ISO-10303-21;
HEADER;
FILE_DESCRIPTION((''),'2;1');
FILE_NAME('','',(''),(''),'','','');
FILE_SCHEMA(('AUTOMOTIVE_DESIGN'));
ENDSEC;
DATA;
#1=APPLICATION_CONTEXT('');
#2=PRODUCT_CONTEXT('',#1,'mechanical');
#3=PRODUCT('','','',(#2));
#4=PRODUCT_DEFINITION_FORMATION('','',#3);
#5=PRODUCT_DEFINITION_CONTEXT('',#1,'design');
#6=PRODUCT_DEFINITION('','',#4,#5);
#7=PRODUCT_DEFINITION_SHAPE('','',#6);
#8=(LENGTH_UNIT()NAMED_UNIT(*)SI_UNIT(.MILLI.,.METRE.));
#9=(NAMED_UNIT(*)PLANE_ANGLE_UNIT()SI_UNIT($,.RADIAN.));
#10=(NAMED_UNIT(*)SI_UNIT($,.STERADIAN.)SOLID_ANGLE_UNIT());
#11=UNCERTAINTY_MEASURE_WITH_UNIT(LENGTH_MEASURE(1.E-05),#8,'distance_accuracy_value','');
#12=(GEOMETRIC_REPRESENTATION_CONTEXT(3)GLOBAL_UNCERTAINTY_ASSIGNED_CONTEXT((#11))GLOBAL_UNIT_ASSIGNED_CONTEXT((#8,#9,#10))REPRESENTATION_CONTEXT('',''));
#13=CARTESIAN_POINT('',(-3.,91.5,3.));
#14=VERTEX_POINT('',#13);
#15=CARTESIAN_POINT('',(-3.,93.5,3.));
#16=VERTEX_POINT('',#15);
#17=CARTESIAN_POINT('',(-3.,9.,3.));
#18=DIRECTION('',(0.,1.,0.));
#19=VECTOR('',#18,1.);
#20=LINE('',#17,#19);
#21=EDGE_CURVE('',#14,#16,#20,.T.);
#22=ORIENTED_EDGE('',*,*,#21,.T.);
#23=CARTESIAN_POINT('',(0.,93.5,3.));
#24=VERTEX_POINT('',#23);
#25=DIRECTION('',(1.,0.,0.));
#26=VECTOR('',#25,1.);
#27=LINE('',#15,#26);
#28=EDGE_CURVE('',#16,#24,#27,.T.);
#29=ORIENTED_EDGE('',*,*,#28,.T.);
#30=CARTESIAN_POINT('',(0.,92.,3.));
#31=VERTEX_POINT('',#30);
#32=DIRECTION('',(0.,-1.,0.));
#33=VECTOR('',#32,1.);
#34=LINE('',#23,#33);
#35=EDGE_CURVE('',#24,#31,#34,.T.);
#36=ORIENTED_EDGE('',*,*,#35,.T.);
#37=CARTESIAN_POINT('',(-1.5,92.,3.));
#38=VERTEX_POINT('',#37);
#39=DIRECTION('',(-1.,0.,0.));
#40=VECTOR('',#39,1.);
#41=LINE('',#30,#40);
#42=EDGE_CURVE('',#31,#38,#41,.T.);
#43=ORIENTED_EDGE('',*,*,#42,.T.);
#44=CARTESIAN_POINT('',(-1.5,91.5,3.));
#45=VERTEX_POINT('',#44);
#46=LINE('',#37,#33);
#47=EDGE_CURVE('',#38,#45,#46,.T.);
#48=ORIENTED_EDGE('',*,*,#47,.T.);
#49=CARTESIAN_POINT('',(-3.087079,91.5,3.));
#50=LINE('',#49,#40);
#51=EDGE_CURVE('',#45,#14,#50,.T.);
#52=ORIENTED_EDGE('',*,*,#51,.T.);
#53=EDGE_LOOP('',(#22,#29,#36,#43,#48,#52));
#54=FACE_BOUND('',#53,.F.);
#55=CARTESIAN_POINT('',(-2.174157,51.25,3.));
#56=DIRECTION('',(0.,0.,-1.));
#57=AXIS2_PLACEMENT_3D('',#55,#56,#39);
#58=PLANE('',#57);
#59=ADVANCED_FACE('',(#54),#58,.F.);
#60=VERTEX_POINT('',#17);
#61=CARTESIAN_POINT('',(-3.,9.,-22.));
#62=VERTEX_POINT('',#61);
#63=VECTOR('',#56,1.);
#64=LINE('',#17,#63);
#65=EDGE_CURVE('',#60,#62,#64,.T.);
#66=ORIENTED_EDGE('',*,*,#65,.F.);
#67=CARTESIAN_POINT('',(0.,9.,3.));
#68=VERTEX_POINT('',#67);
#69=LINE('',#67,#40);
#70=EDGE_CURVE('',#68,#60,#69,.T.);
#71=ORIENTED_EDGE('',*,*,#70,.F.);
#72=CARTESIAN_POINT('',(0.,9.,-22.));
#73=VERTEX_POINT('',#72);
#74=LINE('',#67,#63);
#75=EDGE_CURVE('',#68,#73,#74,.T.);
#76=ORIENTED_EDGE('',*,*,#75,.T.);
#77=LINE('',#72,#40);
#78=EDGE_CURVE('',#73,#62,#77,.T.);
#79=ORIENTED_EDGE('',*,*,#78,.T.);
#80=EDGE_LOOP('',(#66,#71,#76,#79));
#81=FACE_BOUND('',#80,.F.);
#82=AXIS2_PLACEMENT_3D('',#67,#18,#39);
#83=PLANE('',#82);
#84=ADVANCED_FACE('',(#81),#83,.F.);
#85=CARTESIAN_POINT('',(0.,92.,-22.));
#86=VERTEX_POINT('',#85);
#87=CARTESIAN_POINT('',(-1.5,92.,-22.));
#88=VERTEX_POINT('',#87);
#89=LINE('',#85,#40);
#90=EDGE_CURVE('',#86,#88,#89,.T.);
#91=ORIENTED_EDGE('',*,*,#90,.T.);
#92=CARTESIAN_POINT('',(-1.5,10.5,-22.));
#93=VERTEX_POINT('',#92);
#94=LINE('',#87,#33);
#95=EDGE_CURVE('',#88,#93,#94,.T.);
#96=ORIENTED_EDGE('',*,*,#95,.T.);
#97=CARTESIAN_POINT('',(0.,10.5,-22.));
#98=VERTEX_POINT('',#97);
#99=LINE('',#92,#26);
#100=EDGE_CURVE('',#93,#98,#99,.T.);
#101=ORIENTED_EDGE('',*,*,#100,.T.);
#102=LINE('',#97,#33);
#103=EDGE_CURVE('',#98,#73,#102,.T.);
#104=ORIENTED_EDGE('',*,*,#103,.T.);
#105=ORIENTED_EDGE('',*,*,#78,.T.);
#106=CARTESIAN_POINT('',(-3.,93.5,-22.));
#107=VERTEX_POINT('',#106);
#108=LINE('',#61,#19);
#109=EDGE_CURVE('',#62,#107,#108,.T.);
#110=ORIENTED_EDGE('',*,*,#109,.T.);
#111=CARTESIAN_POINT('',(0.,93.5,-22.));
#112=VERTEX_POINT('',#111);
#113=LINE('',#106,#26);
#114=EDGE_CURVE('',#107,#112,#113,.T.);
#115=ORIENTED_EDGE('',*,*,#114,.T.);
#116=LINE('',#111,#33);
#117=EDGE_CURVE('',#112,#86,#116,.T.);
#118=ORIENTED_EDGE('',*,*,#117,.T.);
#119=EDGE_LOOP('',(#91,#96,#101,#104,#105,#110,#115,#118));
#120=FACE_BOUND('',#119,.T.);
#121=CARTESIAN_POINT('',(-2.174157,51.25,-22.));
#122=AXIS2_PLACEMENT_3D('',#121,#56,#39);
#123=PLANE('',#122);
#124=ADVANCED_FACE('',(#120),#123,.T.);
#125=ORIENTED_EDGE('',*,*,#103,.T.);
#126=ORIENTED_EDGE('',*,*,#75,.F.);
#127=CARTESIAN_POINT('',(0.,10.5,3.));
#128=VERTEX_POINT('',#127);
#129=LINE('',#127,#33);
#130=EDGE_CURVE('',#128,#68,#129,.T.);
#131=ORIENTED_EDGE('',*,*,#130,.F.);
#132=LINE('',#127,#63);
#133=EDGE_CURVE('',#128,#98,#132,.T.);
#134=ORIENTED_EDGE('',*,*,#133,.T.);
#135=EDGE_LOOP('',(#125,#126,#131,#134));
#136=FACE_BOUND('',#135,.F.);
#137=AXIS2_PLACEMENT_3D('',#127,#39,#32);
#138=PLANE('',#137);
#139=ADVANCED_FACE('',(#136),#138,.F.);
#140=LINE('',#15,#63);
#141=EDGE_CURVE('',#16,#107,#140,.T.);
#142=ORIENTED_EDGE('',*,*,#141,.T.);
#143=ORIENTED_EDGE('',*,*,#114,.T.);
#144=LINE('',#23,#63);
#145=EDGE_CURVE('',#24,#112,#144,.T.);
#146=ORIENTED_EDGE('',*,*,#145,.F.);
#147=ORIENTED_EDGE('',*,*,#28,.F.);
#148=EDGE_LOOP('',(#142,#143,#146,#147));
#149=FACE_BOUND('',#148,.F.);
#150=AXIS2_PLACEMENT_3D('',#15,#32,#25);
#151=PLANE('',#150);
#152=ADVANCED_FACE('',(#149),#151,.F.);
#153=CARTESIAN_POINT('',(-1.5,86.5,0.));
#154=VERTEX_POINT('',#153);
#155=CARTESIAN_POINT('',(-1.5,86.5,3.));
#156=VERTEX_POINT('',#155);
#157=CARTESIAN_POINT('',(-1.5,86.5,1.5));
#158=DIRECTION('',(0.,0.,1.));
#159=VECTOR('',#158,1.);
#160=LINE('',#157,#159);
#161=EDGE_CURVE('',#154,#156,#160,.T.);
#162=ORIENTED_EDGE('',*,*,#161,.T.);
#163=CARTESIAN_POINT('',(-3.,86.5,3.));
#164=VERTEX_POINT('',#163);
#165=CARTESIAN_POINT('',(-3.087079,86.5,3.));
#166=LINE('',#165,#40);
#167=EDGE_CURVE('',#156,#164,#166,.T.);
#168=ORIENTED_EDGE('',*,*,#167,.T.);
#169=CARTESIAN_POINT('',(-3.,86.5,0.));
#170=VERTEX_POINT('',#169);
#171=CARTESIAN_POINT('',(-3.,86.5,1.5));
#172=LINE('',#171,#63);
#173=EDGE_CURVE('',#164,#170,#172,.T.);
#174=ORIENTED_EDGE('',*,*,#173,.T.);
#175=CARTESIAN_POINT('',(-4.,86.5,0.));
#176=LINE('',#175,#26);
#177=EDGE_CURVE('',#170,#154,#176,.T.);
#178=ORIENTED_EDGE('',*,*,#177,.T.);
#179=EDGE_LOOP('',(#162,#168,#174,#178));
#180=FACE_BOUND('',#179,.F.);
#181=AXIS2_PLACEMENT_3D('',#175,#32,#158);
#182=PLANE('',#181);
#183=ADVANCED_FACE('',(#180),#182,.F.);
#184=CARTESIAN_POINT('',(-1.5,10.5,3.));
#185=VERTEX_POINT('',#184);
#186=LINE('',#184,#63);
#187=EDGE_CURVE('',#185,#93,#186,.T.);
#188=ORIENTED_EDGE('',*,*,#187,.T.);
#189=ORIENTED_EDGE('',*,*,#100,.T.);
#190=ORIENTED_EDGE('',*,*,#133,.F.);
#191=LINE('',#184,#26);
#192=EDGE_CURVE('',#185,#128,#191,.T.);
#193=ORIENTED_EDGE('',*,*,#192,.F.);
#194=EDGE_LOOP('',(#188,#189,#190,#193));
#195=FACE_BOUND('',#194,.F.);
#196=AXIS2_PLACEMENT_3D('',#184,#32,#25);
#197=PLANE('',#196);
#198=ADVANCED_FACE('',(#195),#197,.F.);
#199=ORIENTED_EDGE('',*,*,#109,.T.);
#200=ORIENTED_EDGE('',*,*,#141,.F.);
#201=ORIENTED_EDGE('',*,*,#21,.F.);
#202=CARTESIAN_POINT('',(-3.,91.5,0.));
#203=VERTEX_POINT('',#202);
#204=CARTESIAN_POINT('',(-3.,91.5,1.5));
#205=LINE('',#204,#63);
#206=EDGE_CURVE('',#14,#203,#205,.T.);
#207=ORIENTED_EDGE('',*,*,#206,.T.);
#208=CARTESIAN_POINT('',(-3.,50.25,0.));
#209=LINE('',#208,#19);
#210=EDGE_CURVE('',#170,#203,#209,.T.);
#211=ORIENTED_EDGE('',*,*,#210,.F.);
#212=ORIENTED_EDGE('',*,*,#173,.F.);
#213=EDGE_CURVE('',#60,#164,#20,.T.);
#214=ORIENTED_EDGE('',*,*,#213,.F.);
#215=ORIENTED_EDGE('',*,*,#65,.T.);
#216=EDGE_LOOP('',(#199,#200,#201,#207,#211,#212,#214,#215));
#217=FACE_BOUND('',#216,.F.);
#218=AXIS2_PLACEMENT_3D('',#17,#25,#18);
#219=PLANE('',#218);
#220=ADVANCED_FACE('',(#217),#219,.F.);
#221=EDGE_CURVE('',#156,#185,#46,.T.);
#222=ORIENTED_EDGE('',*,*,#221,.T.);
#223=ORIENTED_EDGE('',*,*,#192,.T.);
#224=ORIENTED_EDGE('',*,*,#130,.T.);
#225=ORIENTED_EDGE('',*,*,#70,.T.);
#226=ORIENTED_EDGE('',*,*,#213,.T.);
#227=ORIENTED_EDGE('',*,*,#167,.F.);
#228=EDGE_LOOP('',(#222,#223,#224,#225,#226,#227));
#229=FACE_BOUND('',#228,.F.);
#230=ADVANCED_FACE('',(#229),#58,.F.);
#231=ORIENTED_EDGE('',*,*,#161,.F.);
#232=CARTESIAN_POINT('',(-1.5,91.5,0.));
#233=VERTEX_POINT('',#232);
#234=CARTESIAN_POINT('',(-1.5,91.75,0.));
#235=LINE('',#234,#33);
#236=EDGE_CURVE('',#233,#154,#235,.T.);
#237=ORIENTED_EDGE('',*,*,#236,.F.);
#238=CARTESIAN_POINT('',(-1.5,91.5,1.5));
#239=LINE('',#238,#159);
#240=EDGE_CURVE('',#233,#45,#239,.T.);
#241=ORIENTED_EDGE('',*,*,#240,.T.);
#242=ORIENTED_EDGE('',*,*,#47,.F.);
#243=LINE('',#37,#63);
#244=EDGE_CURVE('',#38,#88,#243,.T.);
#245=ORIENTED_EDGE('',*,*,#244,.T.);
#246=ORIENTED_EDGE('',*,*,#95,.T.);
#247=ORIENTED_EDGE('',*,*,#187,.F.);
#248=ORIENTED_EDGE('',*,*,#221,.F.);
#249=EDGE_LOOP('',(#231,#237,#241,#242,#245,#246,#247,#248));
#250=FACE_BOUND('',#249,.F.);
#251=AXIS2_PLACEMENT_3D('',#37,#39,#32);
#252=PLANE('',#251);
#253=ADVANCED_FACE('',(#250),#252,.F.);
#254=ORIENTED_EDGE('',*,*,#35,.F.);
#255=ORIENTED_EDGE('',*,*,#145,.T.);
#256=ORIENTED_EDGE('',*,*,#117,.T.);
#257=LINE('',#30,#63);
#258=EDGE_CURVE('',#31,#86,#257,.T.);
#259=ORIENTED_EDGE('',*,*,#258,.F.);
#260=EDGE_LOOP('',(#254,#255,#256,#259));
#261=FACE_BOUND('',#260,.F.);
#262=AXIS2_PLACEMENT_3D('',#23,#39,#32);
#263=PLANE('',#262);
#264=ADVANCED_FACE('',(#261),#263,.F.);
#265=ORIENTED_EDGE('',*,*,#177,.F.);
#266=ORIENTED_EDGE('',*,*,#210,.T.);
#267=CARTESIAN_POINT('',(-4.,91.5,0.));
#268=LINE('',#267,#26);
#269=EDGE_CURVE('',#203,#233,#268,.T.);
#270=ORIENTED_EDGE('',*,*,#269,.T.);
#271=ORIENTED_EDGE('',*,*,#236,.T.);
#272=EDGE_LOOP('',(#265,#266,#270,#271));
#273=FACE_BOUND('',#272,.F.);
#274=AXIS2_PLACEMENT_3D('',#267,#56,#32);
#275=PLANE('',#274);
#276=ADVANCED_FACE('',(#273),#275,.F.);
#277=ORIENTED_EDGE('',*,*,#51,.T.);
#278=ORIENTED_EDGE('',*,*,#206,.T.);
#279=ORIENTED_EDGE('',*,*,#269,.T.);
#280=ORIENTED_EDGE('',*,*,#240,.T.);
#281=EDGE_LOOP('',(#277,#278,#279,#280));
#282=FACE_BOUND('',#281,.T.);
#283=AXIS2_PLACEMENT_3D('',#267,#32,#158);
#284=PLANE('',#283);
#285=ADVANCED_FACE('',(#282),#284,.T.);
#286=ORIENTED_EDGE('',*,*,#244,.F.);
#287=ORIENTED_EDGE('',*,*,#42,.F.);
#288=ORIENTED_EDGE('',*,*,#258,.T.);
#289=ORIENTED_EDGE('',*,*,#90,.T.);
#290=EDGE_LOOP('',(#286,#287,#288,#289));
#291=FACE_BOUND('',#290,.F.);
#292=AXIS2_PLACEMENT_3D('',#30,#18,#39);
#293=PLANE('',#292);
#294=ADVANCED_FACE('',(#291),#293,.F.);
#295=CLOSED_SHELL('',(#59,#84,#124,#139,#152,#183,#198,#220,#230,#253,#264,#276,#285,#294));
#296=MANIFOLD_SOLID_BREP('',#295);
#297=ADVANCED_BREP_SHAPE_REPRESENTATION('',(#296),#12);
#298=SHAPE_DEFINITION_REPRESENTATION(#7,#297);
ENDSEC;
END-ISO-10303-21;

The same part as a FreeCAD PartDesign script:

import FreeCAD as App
import Part
import Sketcher
Q = App.Units.Quantity


def add_polygon(sketch, points):
    """Adds a closed chain of lines whose ends are joined by coincident constraints."""
    first, n = sketch.GeometryCount, len(points)
    for a, b in zip(points, points[1:] + points[:1]):
        sketch.addGeometry(Part.LineSegment(App.Vector(*a, 0), App.Vector(*b, 0)), False)
    for i in range(n):
        sketch.addConstraint(Sketcher.Constraint("Coincident", first + i, 2, first + (i + 1) % n, 1))

doc = App.newDocument("Part")
body = doc.addObject("PartDesign::Body", "Body")

sketch1 = body.newObject("Sketcher::SketchObject", "Sketch")
sketch1.AttachmentSupport = (doc.getObject("YZ_Plane"), [""])
sketch1.MapMode = "FlatFace"
sketch1.AttachmentOffset = App.Placement(App.Vector(0, 0, -4), App.Rotation())
add_polygon(sketch1, [(91.5, 4), (91.5, 0), (86.5, 0), (86.5, 4)])
sketch1.addConstraint(Sketcher.Constraint("Vertical", 0))
sketch1.addConstraint(Sketcher.Constraint("Horizontal", 1))
sketch1.addConstraint(Sketcher.Constraint("Vertical", 2))
sketch1.addConstraint(Sketcher.Constraint("Horizontal", 3))
sketch1.addConstraint(Sketcher.Constraint("PointOnObject", 0, 2, -1))
sketch1.addConstraint(Sketcher.Constraint("DistanceX", 1, 2, 1, 1, Q("5 mm")))
sketch1.addConstraint(Sketcher.Constraint("DistanceY", 0, 2, 0, 1, Q("4 mm")))
sketch1.addConstraint(Sketcher.Constraint("DistanceX", -1, 1, 0, 2, Q("91.5 mm")))
pad1 = body.newObject("PartDesign::Pad", "Pad")
pad1.Profile = sketch1
pad1.Length = 5
body2 = doc.addObject("PartDesign::Body", "Body001")

sketch2 = body2.newObject("Sketcher::SketchObject", "Sketch001")
sketch2.AttachmentSupport = (doc.getObject("XY_Plane001"), [""])
sketch2.MapMode = "FlatFace"
sketch2.AttachmentOffset = App.Placement(App.Vector(0, 0, 3), App.Rotation())
add_polygon(sketch2, [(0, 93.5), (-3, 93.5), (-3, 9), (0, 9), (0, 10.5), (-1.5, 10.5), (-1.5, 92), (0, 92)])
sketch2.addConstraint(Sketcher.Constraint("Horizontal", 0))
sketch2.addConstraint(Sketcher.Constraint("Vertical", 1))
sketch2.addConstraint(Sketcher.Constraint("Horizontal", 2))
sketch2.addConstraint(Sketcher.Constraint("Vertical", 3))
sketch2.addConstraint(Sketcher.Constraint("Horizontal", 4))
sketch2.addConstraint(Sketcher.Constraint("Vertical", 5))
sketch2.addConstraint(Sketcher.Constraint("Horizontal", 6))
sketch2.addConstraint(Sketcher.Constraint("Vertical", 7))
sketch2.addConstraint(Sketcher.Constraint("PointOnObject", 2, 2, -2))
sketch2.addConstraint(Sketcher.Constraint("PointOnObject", 6, 2, -2))
sketch2.addConstraint(Sketcher.Constraint("Equal", 6, 3))
sketch2.addConstraint(Sketcher.Constraint("Equal", 3, 7))
sketch2.addConstraint(Sketcher.Constraint("DistanceX", 0, 2, 0, 1, Q("3 mm")))
sketch2.addConstraint(Sketcher.Constraint("DistanceX", 4, 2, 4, 1, Q("1.5 mm")))
sketch2.addConstraint(Sketcher.Constraint("DistanceY", 1, 2, 1, 1, Q("84.5 mm")))
sketch2.addConstraint(Sketcher.Constraint("DistanceY", -1, 1, 1, 2, Q("9 mm")))
pad2 = body2.newObject("PartDesign::Pad", "Pad001")
pad2.Profile = sketch2
pad2.Length = 25
pad2.Reversed = True
doc.recompute()

boolean = body2.newObject("PartDesign::Boolean", "Boolean")
boolean.Type = "Cut"
boolean.addObjects([body])

doc.recompute()
